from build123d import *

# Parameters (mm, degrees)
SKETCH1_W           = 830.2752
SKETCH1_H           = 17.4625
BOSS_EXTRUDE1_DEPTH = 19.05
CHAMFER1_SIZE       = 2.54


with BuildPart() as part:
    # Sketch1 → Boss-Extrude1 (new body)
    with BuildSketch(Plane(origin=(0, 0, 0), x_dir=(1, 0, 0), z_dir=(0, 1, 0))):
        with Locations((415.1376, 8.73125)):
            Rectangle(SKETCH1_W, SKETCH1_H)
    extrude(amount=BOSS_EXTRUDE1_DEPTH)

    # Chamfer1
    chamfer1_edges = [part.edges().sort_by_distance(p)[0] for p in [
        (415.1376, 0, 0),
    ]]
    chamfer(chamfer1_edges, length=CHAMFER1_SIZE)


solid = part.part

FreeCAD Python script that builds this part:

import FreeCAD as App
import Part
import Sketcher

V = App.Vector
Q = App.Units.Quantity


def edges_at(feature, points):
    """Names of the edges that pass closest to the given points."""
    edges = feature.Shape.Edges
    near = lambda p: min(range(len(edges)), key=lambda i: edges[i].distToShape(Part.Vertex(*p))[0])
    return sorted({f"Edge{near(p) + 1}" for p in points})


def add_polygon(sketch, points):
    """Adds a closed chain of lines whose ends are joined by coincident constraints."""
    first, n = sketch.GeometryCount, len(points)
    for a, b in zip(points, points[1:] + points[:1]):
        sketch.addGeometry(Part.LineSegment(App.Vector(*a, 0), App.Vector(*b, 0)), False)
    for i in range(n):
        sketch.addConstraint(Sketcher.Constraint("Coincident", first + i, 2, first + (i + 1) % n, 1))

doc = App.newDocument("Part")
body = doc.addObject("PartDesign::Body", "Body")

sketch1 = doc.addObject("Sketcher::SketchObject", "Sketch")
body.addObject(sketch1)
sketch1.AttachmentSupport = (doc.XZ_Plane, [""])
sketch1.MapMode = "FlatFace"
add_polygon(sketch1, [(0, -17), (0, 0), (830, 0), (830, -17)])
sketch1.addConstraint([
    Sketcher.Constraint("Vertical", 0),
    Sketcher.Constraint("Horizontal", 1),
    Sketcher.Constraint("Vertical", 2),
    Sketcher.Constraint("Horizontal", 3),
    Sketcher.Constraint("Coincident", 0, 2, -1, 1),
    Sketcher.Constraint("DistanceX", 1, 1, 1, 2, Q("32.688 in")),
    Sketcher.Constraint("DistanceY", 0, 1, 0, 2, Q("0.6875 in")),
])
pad1 = doc.addObject("PartDesign::Pad", "Pad")
body.addObject(pad1)
pad1.Profile = sketch1
pad1.Length = Q("0.75 in")
pad1.Reversed = True
doc.recompute()

chamfer = doc.addObject("PartDesign::Chamfer", "Chamfer")
body.addObject(chamfer)
chamfer.Base = (pad1, edges_at(pad1, [(415.138, 0, 0)]))
chamfer.Size = Q("0.1 in")

doc.recompute()
